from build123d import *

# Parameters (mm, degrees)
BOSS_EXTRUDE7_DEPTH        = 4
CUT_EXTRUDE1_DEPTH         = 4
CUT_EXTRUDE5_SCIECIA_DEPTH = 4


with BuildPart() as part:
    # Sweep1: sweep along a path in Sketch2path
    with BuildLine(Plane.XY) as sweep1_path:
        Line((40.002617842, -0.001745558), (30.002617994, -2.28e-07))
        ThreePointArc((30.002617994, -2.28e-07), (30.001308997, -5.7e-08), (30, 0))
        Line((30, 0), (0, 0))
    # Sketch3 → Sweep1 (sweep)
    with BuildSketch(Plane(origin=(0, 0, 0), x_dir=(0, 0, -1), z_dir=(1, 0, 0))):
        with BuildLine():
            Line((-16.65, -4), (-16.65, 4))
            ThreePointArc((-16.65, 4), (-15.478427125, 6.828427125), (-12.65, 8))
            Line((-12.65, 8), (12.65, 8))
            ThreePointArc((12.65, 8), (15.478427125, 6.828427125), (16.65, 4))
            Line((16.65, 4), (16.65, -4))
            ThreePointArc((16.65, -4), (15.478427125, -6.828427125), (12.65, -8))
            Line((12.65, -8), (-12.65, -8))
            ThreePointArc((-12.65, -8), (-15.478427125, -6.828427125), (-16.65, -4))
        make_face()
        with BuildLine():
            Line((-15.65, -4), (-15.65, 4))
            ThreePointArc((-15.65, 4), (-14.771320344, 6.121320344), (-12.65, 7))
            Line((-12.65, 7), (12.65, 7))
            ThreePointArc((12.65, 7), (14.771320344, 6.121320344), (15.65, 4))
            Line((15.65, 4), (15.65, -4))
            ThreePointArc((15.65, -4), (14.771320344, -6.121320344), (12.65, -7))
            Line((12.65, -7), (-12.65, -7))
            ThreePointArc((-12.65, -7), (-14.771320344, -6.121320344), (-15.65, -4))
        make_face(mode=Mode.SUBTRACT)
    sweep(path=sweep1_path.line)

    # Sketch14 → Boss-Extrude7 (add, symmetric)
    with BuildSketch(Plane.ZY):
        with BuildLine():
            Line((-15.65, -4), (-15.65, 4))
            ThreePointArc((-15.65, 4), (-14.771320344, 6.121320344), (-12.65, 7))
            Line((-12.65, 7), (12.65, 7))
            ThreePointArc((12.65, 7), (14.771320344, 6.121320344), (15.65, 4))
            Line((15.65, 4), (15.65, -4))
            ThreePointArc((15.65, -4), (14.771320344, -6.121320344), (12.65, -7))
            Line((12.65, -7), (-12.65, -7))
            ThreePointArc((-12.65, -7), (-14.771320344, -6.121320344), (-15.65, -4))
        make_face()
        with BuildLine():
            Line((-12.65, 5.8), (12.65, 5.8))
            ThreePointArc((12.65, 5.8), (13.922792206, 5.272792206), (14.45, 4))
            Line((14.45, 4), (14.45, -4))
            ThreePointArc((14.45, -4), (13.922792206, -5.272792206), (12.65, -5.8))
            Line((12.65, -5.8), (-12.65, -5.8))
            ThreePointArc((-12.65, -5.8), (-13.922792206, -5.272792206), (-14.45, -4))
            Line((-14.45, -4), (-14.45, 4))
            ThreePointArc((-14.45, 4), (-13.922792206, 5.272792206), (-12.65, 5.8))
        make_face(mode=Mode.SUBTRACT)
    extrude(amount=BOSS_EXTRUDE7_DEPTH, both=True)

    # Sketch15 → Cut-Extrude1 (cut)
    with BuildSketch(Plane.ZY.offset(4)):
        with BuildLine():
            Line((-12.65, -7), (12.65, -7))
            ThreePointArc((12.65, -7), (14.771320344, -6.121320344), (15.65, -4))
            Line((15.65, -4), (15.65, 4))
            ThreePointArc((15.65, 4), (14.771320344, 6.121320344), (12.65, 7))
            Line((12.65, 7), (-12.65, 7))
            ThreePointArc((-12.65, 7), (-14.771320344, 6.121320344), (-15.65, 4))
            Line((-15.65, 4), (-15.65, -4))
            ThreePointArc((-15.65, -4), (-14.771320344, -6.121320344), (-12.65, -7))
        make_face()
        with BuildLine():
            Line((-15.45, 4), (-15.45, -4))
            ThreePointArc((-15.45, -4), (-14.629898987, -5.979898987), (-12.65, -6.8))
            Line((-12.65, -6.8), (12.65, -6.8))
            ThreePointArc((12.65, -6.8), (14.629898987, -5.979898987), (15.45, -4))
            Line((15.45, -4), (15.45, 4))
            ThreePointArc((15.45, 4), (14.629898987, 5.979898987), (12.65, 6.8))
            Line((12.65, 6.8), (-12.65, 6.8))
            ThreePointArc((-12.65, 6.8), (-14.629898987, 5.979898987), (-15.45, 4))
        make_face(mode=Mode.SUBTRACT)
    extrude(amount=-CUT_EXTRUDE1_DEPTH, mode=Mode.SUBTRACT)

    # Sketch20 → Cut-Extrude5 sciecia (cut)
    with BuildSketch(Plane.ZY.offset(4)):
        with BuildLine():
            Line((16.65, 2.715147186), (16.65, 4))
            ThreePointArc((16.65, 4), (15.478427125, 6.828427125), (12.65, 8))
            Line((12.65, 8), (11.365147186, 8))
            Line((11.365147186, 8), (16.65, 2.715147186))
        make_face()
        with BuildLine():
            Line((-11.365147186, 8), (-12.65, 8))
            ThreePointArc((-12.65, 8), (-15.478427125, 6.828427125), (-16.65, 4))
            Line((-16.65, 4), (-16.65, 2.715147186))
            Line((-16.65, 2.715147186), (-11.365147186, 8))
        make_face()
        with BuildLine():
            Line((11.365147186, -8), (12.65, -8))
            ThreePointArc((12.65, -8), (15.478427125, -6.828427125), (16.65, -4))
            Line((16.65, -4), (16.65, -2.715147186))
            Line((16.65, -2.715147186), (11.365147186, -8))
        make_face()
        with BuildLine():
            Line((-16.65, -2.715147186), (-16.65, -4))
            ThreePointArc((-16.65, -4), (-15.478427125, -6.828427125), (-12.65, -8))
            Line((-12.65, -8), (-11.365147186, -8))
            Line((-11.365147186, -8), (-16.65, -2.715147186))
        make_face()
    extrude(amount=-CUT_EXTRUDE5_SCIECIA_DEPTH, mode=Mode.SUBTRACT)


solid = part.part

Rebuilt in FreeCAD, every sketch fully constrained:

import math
import FreeCAD as App
import Part
import Sketcher
from FreeCAD import Vector
Q = App.Units.Quantity

doc = App.newDocument("Part")
body = doc.addObject("PartDesign::Body", "Body")

# Sketch on YZ plane
sketch1 = body.newObject("Sketcher::SketchObject", "Sketch")
sketch1.AttachmentSupport = (doc.getObject("YZ_Plane"), [""])
sketch1.MapMode = "FlatFace"
sketch1.addGeometry([
    Part.LineSegment(Vector(4, 16.6, 0), Vector(-4, 16.6, 0)),  # 0
    Part.ArcOfCircle(Part.Circle(Vector(-4, 12.7, 0), Vector(0, 0, 1), 4), math.radians(90), math.radians(180)),  # 1
    Part.LineSegment(Vector(-8, 12.7, 0), Vector(-8, -12.7, 0)),  # 2
    Part.ArcOfCircle(Part.Circle(Vector(-4, -12.7, 0), Vector(0, 0, 1), 4), math.radians(180), math.radians(270)),  # 3
    Part.LineSegment(Vector(-4, -16.6, 0), Vector(4, -16.6, 0)),  # 4
    Part.ArcOfCircle(Part.Circle(Vector(4, -12.7, 0), Vector(0, 0, 1), 4), math.radians(-90), math.radians(0)),  # 5
    Part.LineSegment(Vector(8, -12.7, 0), Vector(8, 12.7, 0)),  # 6
    Part.ArcOfCircle(Part.Circle(Vector(4, 12.7, 0), Vector(0, 0, 1), 4), math.radians(0), math.radians(90)),  # 7
    Part.LineSegment(Vector(-4, 15.7, 0), Vector(4, 15.7, 0)),  # 8
    Part.ArcOfCircle(Part.Circle(Vector(4, 12.7, 0), Vector(0, 0, 1), 3), math.radians(0), math.radians(90)),  # 9
    Part.LineSegment(Vector(7, 12.7, 0), Vector(7, -12.7, 0)),  # 10
    Part.ArcOfCircle(Part.Circle(Vector(4, -12.7, 0), Vector(0, 0, 1), 3), math.radians(-90), math.radians(0)),  # 11
    Part.LineSegment(Vector(4, -15.7, 0), Vector(-4, -15.7, 0)),  # 12
    Part.ArcOfCircle(Part.Circle(Vector(-4, -12.7, 0), Vector(0, 0, 1), 3), math.radians(180), math.radians(270)),  # 13
    Part.LineSegment(Vector(-7, -12.7, 0), Vector(-7, 12.7, 0)),  # 14
    Part.ArcOfCircle(Part.Circle(Vector(-4, 12.7, 0), Vector(0, 0, 1), 3), math.radians(90), math.radians(180)),  # 15
], False)
sketch1.addConstraint([
    Sketcher.Constraint("Tangent", 0, 2, 1, 1),
    Sketcher.Constraint("Tangent", 1, 2, 2, 1),
    Sketcher.Constraint("Tangent", 2, 2, 3, 1),
    Sketcher.Constraint("Tangent", 3, 2, 4, 1),
    Sketcher.Constraint("Tangent", 4, 2, 5, 1),
    Sketcher.Constraint("Tangent", 5, 2, 6, 1),
    Sketcher.Constraint("Tangent", 6, 2, 7, 1),
    Sketcher.Constraint("Tangent", 7, 2, 0, 1),
    Sketcher.Constraint("Tangent", 8, 2, 9, 2),
    Sketcher.Constraint("Tangent", 9, 1, 10, 1),
    Sketcher.Constraint("Tangent", 10, 2, 11, 2),
    Sketcher.Constraint("Tangent", 11, 1, 12, 1),
    Sketcher.Constraint("Tangent", 12, 2, 13, 2),
    Sketcher.Constraint("Tangent", 13, 1, 14, 1),
    Sketcher.Constraint("Tangent", 14, 2, 15, 2),
    Sketcher.Constraint("Tangent", 15, 1, 8, 1),
    Sketcher.Constraint("Horizontal", 0),
    Sketcher.Constraint("Vertical", 2),
    Sketcher.Constraint("Horizontal", 4),
    Sketcher.Constraint("Vertical", 6),
    Sketcher.Constraint("Horizontal", 8),
    Sketcher.Constraint("Vertical", 10),
    Sketcher.Constraint("Horizontal", 12),
    Sketcher.Constraint("Vertical", 14),
    Sketcher.Constraint("Coincident", 9, 3, 7, 3),
    Sketcher.Constraint("Coincident", 11, 3, 5, 3),
    Sketcher.Constraint("Coincident", 13, 3, 3, 3),
    Sketcher.Constraint("Equal", 1, 3),
    Sketcher.Constraint("Equal", 3, 5),
    Sketcher.Constraint("Equal", 5, 7),
    Sketcher.Constraint("Equal", 13, 15),
    Sketcher.Constraint("Symmetric", 1, 3, 5, 3, -1, 1),
    Sketcher.Constraint("Radius", 1, 4.0),
    Sketcher.Constraint("Radius", 9, 3.0),
    Sketcher.Constraint("DistanceX", 0, 2, 0, 1, 8.0),
    Sketcher.Constraint("DistanceY", 2, 2, 2, 1, 25.3),
])

# Sketch on XY plane
sketch2 = body.newObject("Sketcher::SketchObject", "Sketch001")
sketch2.AttachmentSupport = (doc.getObject("XY_Plane"), [""])
sketch2.MapMode = "FlatFace"
sketch2.addGeometry([
    Part.LineSegment(Vector(40.0026, -0.0017, 0), Vector(30.0026, 0, 0)),
    Part.ArcOfCircle(Part.Circle(Vector(30, -15.0305, 0), Vector(0, 0, 1), 15.0305), math.radians(89.99), math.radians(90)),
    Part.LineSegment(Vector(30, 0, 0), Vector(0, 0, 0)),
], False)
sketch2.addConstraint([
    Sketcher.Constraint("Tangent", 0, 2, 1, 1),
    Sketcher.Constraint("Tangent", 1, 2, 2, 1),
    Sketcher.Constraint("Horizontal", 2),
    Sketcher.Constraint("Coincident", 2, 2, -1, 1),
    Sketcher.Constraint("DistanceX", 2, 2, 2, 1, 30.0),
    Sketcher.Constraint("Distance", 0, 10.0),
    Sketcher.Constraint("Angle", 0, Q("179.99 deg")),
    Sketcher.Constraint("Radius", 1, 15.030466),
])
doc.recompute()

additivepipe = body.newObject("PartDesign::AdditivePipe", "AdditivePipe")
additivepipe.Profile = sketch1
additivepipe.Spine = (sketch2, ["Edge1", "Edge2", "Edge3"])

# Sketch on YZ plane
sketch3 = body.newObject("Sketcher::SketchObject", "Sketch002")
sketch3.AttachmentSupport = (doc.getObject("YZ_Plane"), [""])
sketch3.MapMode = "FlatFace"
sketch3.addGeometry([
    Part.LineSegment(Vector(4, -15.7, 0), Vector(-4, -15.7, 0)),  # 0
    Part.ArcOfCircle(Part.Circle(Vector(-4, -12.7, 0), Vector(0, 0, 1), 3), math.radians(180), math.radians(270)),  # 1
    Part.LineSegment(Vector(-7, -12.7, 0), Vector(-7, 12.7, 0)),  # 2
    Part.ArcOfCircle(Part.Circle(Vector(-4, 12.7, 0), Vector(0, 0, 1), 3), math.radians(90), math.radians(180)),  # 3
    Part.LineSegment(Vector(-4, 15.7, 0), Vector(4, 15.7, 0)),  # 4
    Part.ArcOfCircle(Part.Circle(Vector(4, 12.7, 0), Vector(0, 0, 1), 3), math.radians(0), math.radians(90)),  # 5
    Part.LineSegment(Vector(7, 12.7, 0), Vector(7, -12.7, 0)),  # 6
    Part.ArcOfCircle(Part.Circle(Vector(4, -12.7, 0), Vector(0, 0, 1), 3), math.radians(-90), math.radians(0)),  # 7
    Part.LineSegment(Vector(5.8, -12.7, 0), Vector(5.8, 12.7, 0)),  # 8
    Part.ArcOfCircle(Part.Circle(Vector(4, 12.7, 0), Vector(0, 0, 1), 1.8), math.radians(0), math.radians(90)),  # 9
    Part.LineSegment(Vector(4, 14.4, 0), Vector(-4, 14.4, 0)),  # 10
    Part.ArcOfCircle(Part.Circle(Vector(-4, 12.7, 0), Vector(0, 0, 1), 1.8), math.radians(90), math.radians(180)),  # 11
    Part.LineSegment(Vector(-5.8, 12.7, 0), Vector(-5.8, -12.7, 0)),  # 12
    Part.ArcOfCircle(Part.Circle(Vector(-4, -12.7, 0), Vector(0, 0, 1), 1.8), math.radians(180), math.radians(270)),  # 13
    Part.LineSegment(Vector(-4, -14.4, 0), Vector(4, -14.4, 0)),  # 14
    Part.ArcOfCircle(Part.Circle(Vector(4, -12.7, 0), Vector(0, 0, 1), 1.8), math.radians(-90), math.radians(0)),  # 15
], False)
sketch3.addConstraint([
    Sketcher.Constraint("Tangent", 0, 2, 1, 2),
    Sketcher.Constraint("Tangent", 1, 1, 2, 1),
    Sketcher.Constraint("Tangent", 2, 2, 3, 2),
    Sketcher.Constraint("Tangent", 3, 1, 4, 1),
    Sketcher.Constraint("Tangent", 4, 2, 5, 2),
    Sketcher.Constraint("Tangent", 5, 1, 6, 1),
    Sketcher.Constraint("Tangent", 6, 2, 7, 2),
    Sketcher.Constraint("Tangent", 7, 1, 0, 1),
    Sketcher.Constraint("Tangent", 8, 2, 9, 1),
    Sketcher.Constraint("Tangent", 9, 2, 10, 1),
    Sketcher.Constraint("Tangent", 10, 2, 11, 1),
    Sketcher.Constraint("Tangent", 11, 2, 12, 1),
    Sketcher.Constraint("Tangent", 12, 2, 13, 1),
    Sketcher.Constraint("Tangent", 13, 2, 14, 1),
    Sketcher.Constraint("Tangent", 14, 2, 15, 1),
    Sketcher.Constraint("Tangent", 15, 2, 8, 1),
    Sketcher.Constraint("Horizontal", 0),
    Sketcher.Constraint("Vertical", 2),
    Sketcher.Constraint("Horizontal", 4),
    Sketcher.Constraint("Vertical", 6),
    Sketcher.Constraint("Vertical", 8),
    Sketcher.Constraint("Horizontal", 10),
    Sketcher.Constraint("Vertical", 12),
    Sketcher.Constraint("Horizontal", 14),
    Sketcher.Constraint("Coincident", 9, 3, 5, 3),
    Sketcher.Constraint("Coincident", 11, 3, 3, 3),
    Sketcher.Constraint("Coincident", 13, 3, 1, 3),
    Sketcher.Constraint("Equal", 1, 3),
    Sketcher.Constraint("Equal", 3, 5),
    Sketcher.Constraint("Equal", 5, 7),
    Sketcher.Constraint("Equal", 13, 15),
    Sketcher.Constraint("Symmetric", 1, 3, 5, 3, -1, 1),
    Sketcher.Constraint("Radius", 1, 3.0),
    Sketcher.Constraint("Radius", 9, 1.8),
    Sketcher.Constraint("DistanceX", 0, 2, 0, 1, 8.0),
    Sketcher.Constraint("DistanceY", 2, 1, 2, 2, 25.3),
])
pad1 = body.newObject("PartDesign::Pad", "Pad")
pad1.Profile = sketch3
pad1.Length = 8
pad1.Midplane = True

# Sketch on YZ plane
sketch4 = body.newObject("Sketcher::SketchObject", "Sketch003")
sketch4.AttachmentSupport = (doc.getObject("YZ_Plane"), [""])
sketch4.MapMode = "FlatFace"
sketch4.AttachmentOffset = App.Placement(Vector(0, 0, -4), App.Rotation())
sketch4.addGeometry([
    Part.LineSegment(Vector(-7, -12.7, 0), Vector(-7, 12.7, 0)),  # 0
    Part.ArcOfCircle(Part.Circle(Vector(-4, 12.7, 0), Vector(0, 0, 1), 3), math.radians(90), math.radians(180)),  # 1
    Part.LineSegment(Vector(-4, 15.7, 0), Vector(4, 15.7, 0)),  # 2
    Part.ArcOfCircle(Part.Circle(Vector(4, 12.7, 0), Vector(0, 0, 1), 3), math.radians(0), math.radians(90)),  # 3
    Part.LineSegment(Vector(7, 12.7, 0), Vector(7, -12.7, 0)),  # 4
    Part.ArcOfCircle(Part.Circle(Vector(4, -12.7, 0), Vector(0, 0, 1), 3), math.radians(-90), math.radians(0)),  # 5
    Part.LineSegment(Vector(4, -15.7, 0), Vector(-4, -15.7, 0)),  # 6
    Part.ArcOfCircle(Part.Circle(Vector(-4, -12.7, 0), Vector(0, 0, 1), 3), math.radians(180), math.radians(270)),  # 7
    Part.LineSegment(Vector(-4, -15.4, 0), Vector(4, -15.4, 0)),  # 8
    Part.ArcOfCircle(Part.Circle(Vector(4, -12.6, 0), Vector(0, 0, 1), 2.8), math.radians(-90), math.radians(0)),  # 9
    Part.LineSegment(Vector(6.8, -12.7, 0), Vector(6.8, 12.7, 0)),  # 10
    Part.ArcOfCircle(Part.Circle(Vector(4, 12.6, 0), Vector(0, 0, 1), 2.8), math.radians(0), math.radians(90)),  # 11
    Part.LineSegment(Vector(4, 15.4, 0), Vector(-4, 15.4, 0)),  # 12
    Part.ArcOfCircle(Part.Circle(Vector(-4, 12.6, 0), Vector(0, 0, 1), 2.8), math.radians(90), math.radians(180)),  # 13
    Part.LineSegment(Vector(-6.8, 12.7, 0), Vector(-6.8, -12.7, 0)),  # 14
    Part.ArcOfCircle(Part.Circle(Vector(-4, -12.6, 0), Vector(0, 0, 1), 2.8), math.radians(-180), math.radians(-90)),  # 15
], False)
sketch4.addConstraint([
    Sketcher.Constraint("Tangent", 0, 2, 1, 2),
    Sketcher.Constraint("Tangent", 1, 1, 2, 1),
    Sketcher.Constraint("Tangent", 2, 2, 3, 2),
    Sketcher.Constraint("Tangent", 3, 1, 4, 1),
    Sketcher.Constraint("Tangent", 4, 2, 5, 2),
    Sketcher.Constraint("Tangent", 5, 1, 6, 1),
    Sketcher.Constraint("Tangent", 6, 2, 7, 2),
    Sketcher.Constraint("Tangent", 7, 1, 0, 1),
    Sketcher.Constraint("Tangent", 8, 2, 9, 1),
    Sketcher.Constraint("Tangent", 9, 2, 10, 1),
    Sketcher.Constraint("Tangent", 10, 2, 11, 1),
    Sketcher.Constraint("Tangent", 11, 2, 12, 1),
    Sketcher.Constraint("Tangent", 12, 2, 13, 1),
    Sketcher.Constraint("Tangent", 13, 2, 14, 1),
    Sketcher.Constraint("Tangent", 14, 2, 15, 1),
    Sketcher.Constraint("Tangent", 15, 2, 8, 1),
    Sketcher.Constraint("Vertical", 0),
    Sketcher.Constraint("Horizontal", 2),
    Sketcher.Constraint("Vertical", 4),
    Sketcher.Constraint("Horizontal", 6),
    Sketcher.Constraint("Horizontal", 8),
    Sketcher.Constraint("Vertical", 10),
    Sketcher.Constraint("Horizontal", 12),
    Sketcher.Constraint("Vertical", 14),
    Sketcher.Constraint("Coincident", 9, 3, 5, 3),
    Sketcher.Constraint("Coincident", 11, 3, 3, 3),
    Sketcher.Constraint("Coincident", 13, 3, 1, 3),
    Sketcher.Constraint("Equal", 1, 3),
    Sketcher.Constraint("Equal", 3, 5),
    Sketcher.Constraint("Equal", 5, 7),
    Sketcher.Constraint("Equal", 13, 15),
    Sketcher.Constraint("Symmetric", 1, 3, 5, 3, -1, 1),
    Sketcher.Constraint("Radius", 1, 3.0),
    Sketcher.Constraint("Radius", 9, 2.8),
    Sketcher.Constraint("DistanceX", 2, 1, 2, 2, 8.0),
    Sketcher.Constraint("DistanceY", 0, 1, 0, 2, 25.3),
])
pocket1 = body.newObject("PartDesign::Pocket", "Pocket")
pocket1.Profile = sketch4
pocket1.Length = 4
pocket1.Reversed = True

# Sketch on YZ plane
sketch5 = body.newObject("Sketcher::SketchObject", "Sketch004")
sketch5.AttachmentSupport = (doc.getObject("YZ_Plane"), [""])
sketch5.MapMode = "FlatFace"
sketch5.AttachmentOffset = App.Placement(Vector(0, 0, -4), App.Rotation())
sketch5.addGeometry([
    Part.LineSegment(Vector(2.7, 16.6, 0), Vector(4, 16.6, 0)),  # 0
    Part.ArcOfCircle(Part.Circle(Vector(4, 12.7, 0), Vector(0, 0, 1), 4), math.radians(0), math.radians(90)),  # 1
    Part.LineSegment(Vector(8, 12.7, 0), Vector(8, 11.4, 0)),  # 2
    Part.LineSegment(Vector(8, 11.4, 0), Vector(2.7, 16.6, 0)),  # 3
    Part.LineSegment(Vector(8, -11.4, 0), Vector(8, -12.7, 0)),  # 4
    Part.ArcOfCircle(Part.Circle(Vector(4, -12.7, 0), Vector(0, 0, 1), 4), math.radians(-90), math.radians(0)),  # 5
    Part.LineSegment(Vector(4, -16.6, 0), Vector(2.7, -16.6, 0)),  # 6
    Part.LineSegment(Vector(2.7, -16.6, 0), Vector(8, -11.4, 0)),  # 7
    Part.LineSegment(Vector(-8, 11.4, 0), Vector(-8, 12.7, 0)),  # 8
    Part.ArcOfCircle(Part.Circle(Vector(-4, 12.7, 0), Vector(0, 0, 1), 4), math.radians(90), math.radians(180)),  # 9
    Part.LineSegment(Vector(-4, 16.6, 0), Vector(-2.7, 16.6, 0)),  # 10
    Part.LineSegment(Vector(-2.7, 16.6, 0), Vector(-8, 11.4, 0)),  # 11
    Part.LineSegment(Vector(-2.7, -16.6, 0), Vector(-4, -16.6, 0)),  # 12
    Part.ArcOfCircle(Part.Circle(Vector(-4, -12.7, 0), Vector(0, 0, 1), 4), math.radians(180), math.radians(270)),  # 13
    Part.LineSegment(Vector(-8, -12.7, 0), Vector(-8, -11.4, 0)),  # 14
    Part.LineSegment(Vector(-8, -11.4, 0), Vector(-2.7, -16.6, 0)),  # 15
], False)
sketch5.addConstraint([
    Sketcher.Constraint("Tangent", 0, 2, 1, 2),
    Sketcher.Constraint("Tangent", 1, 1, 2, 1),
    Sketcher.Constraint("Coincident", 2, 2, 3, 1),
    Sketcher.Constraint("Coincident", 3, 2, 0, 1),
    Sketcher.Constraint("Tangent", 4, 2, 5, 2),
    Sketcher.Constraint("Tangent", 5, 1, 6, 1),
    Sketcher.Constraint("Coincident", 6, 2, 7, 1),
    Sketcher.Constraint("Coincident", 7, 2, 4, 1),
    Sketcher.Constraint("Tangent", 8, 2, 9, 2),
    Sketcher.Constraint("Tangent", 9, 1, 10, 1),
    Sketcher.Constraint("Coincident", 10, 2, 11, 1),
    Sketcher.Constraint("Coincident", 11, 2, 8, 1),
    Sketcher.Constraint("Tangent", 12, 2, 13, 2),
    Sketcher.Constraint("Tangent", 13, 1, 14, 1),
    Sketcher.Constraint("Coincident", 14, 2, 15, 1),
    Sketcher.Constraint("Coincident", 15, 2, 12, 1),
    Sketcher.Constraint("Horizontal", 0),
    Sketcher.Constraint("Vertical", 2),
    Sketcher.Constraint("Vertical", 4),
    Sketcher.Constraint("Horizontal", 6),
    Sketcher.Constraint("Vertical", 8),
    Sketcher.Constraint("Horizontal", 10),
    Sketcher.Constraint("Horizontal", 12),
    Sketcher.Constraint("Vertical", 14),
    Sketcher.Constraint("Equal", 1, 5),
    Sketcher.Constraint("Equal", 5, 9),
    Sketcher.Constraint("Equal", 9, 13),
    Sketcher.Constraint("Symmetric", 5, 3, 9, 3, -1, 1),
    Sketcher.Constraint("Symmetric", 1, 3, 13, 3, -1, 1),
    Sketcher.Constraint("Symmetric", 1, 3, 9, 3, -2),
    Sketcher.Constraint("Perpendicular", 3, 7),
    Sketcher.Constraint("Parallel", 7, 11),
    Sketcher.Constraint("Perpendicular", 11, 15),
    Sketcher.Constraint("Horizontal", 2, 2, 11, 2),
    Sketcher.Constraint("Horizontal", 7, 2, 14, 2),
    Sketcher.Constraint("Vertical", 3, 2, 6, 2),
    Sketcher.Constraint("Vertical", 10, 2, 15, 2),
    Sketcher.Constraint("Radius", 1, 4.0),
    Sketcher.Constraint("DistanceX", -1, 1, 1, 3, 4.0),
    Sketcher.Constraint("DistanceY", 5, 3, 1, 3, 25.3),
    Sketcher.Constraint("Distance", 3, 7.473911),
])
pocket2 = body.newObject("PartDesign::Pocket", "Pocket001")
pocket2.Profile = sketch5
pocket2.Length = 4
pocket2.Reversed = True

doc.recompute()
